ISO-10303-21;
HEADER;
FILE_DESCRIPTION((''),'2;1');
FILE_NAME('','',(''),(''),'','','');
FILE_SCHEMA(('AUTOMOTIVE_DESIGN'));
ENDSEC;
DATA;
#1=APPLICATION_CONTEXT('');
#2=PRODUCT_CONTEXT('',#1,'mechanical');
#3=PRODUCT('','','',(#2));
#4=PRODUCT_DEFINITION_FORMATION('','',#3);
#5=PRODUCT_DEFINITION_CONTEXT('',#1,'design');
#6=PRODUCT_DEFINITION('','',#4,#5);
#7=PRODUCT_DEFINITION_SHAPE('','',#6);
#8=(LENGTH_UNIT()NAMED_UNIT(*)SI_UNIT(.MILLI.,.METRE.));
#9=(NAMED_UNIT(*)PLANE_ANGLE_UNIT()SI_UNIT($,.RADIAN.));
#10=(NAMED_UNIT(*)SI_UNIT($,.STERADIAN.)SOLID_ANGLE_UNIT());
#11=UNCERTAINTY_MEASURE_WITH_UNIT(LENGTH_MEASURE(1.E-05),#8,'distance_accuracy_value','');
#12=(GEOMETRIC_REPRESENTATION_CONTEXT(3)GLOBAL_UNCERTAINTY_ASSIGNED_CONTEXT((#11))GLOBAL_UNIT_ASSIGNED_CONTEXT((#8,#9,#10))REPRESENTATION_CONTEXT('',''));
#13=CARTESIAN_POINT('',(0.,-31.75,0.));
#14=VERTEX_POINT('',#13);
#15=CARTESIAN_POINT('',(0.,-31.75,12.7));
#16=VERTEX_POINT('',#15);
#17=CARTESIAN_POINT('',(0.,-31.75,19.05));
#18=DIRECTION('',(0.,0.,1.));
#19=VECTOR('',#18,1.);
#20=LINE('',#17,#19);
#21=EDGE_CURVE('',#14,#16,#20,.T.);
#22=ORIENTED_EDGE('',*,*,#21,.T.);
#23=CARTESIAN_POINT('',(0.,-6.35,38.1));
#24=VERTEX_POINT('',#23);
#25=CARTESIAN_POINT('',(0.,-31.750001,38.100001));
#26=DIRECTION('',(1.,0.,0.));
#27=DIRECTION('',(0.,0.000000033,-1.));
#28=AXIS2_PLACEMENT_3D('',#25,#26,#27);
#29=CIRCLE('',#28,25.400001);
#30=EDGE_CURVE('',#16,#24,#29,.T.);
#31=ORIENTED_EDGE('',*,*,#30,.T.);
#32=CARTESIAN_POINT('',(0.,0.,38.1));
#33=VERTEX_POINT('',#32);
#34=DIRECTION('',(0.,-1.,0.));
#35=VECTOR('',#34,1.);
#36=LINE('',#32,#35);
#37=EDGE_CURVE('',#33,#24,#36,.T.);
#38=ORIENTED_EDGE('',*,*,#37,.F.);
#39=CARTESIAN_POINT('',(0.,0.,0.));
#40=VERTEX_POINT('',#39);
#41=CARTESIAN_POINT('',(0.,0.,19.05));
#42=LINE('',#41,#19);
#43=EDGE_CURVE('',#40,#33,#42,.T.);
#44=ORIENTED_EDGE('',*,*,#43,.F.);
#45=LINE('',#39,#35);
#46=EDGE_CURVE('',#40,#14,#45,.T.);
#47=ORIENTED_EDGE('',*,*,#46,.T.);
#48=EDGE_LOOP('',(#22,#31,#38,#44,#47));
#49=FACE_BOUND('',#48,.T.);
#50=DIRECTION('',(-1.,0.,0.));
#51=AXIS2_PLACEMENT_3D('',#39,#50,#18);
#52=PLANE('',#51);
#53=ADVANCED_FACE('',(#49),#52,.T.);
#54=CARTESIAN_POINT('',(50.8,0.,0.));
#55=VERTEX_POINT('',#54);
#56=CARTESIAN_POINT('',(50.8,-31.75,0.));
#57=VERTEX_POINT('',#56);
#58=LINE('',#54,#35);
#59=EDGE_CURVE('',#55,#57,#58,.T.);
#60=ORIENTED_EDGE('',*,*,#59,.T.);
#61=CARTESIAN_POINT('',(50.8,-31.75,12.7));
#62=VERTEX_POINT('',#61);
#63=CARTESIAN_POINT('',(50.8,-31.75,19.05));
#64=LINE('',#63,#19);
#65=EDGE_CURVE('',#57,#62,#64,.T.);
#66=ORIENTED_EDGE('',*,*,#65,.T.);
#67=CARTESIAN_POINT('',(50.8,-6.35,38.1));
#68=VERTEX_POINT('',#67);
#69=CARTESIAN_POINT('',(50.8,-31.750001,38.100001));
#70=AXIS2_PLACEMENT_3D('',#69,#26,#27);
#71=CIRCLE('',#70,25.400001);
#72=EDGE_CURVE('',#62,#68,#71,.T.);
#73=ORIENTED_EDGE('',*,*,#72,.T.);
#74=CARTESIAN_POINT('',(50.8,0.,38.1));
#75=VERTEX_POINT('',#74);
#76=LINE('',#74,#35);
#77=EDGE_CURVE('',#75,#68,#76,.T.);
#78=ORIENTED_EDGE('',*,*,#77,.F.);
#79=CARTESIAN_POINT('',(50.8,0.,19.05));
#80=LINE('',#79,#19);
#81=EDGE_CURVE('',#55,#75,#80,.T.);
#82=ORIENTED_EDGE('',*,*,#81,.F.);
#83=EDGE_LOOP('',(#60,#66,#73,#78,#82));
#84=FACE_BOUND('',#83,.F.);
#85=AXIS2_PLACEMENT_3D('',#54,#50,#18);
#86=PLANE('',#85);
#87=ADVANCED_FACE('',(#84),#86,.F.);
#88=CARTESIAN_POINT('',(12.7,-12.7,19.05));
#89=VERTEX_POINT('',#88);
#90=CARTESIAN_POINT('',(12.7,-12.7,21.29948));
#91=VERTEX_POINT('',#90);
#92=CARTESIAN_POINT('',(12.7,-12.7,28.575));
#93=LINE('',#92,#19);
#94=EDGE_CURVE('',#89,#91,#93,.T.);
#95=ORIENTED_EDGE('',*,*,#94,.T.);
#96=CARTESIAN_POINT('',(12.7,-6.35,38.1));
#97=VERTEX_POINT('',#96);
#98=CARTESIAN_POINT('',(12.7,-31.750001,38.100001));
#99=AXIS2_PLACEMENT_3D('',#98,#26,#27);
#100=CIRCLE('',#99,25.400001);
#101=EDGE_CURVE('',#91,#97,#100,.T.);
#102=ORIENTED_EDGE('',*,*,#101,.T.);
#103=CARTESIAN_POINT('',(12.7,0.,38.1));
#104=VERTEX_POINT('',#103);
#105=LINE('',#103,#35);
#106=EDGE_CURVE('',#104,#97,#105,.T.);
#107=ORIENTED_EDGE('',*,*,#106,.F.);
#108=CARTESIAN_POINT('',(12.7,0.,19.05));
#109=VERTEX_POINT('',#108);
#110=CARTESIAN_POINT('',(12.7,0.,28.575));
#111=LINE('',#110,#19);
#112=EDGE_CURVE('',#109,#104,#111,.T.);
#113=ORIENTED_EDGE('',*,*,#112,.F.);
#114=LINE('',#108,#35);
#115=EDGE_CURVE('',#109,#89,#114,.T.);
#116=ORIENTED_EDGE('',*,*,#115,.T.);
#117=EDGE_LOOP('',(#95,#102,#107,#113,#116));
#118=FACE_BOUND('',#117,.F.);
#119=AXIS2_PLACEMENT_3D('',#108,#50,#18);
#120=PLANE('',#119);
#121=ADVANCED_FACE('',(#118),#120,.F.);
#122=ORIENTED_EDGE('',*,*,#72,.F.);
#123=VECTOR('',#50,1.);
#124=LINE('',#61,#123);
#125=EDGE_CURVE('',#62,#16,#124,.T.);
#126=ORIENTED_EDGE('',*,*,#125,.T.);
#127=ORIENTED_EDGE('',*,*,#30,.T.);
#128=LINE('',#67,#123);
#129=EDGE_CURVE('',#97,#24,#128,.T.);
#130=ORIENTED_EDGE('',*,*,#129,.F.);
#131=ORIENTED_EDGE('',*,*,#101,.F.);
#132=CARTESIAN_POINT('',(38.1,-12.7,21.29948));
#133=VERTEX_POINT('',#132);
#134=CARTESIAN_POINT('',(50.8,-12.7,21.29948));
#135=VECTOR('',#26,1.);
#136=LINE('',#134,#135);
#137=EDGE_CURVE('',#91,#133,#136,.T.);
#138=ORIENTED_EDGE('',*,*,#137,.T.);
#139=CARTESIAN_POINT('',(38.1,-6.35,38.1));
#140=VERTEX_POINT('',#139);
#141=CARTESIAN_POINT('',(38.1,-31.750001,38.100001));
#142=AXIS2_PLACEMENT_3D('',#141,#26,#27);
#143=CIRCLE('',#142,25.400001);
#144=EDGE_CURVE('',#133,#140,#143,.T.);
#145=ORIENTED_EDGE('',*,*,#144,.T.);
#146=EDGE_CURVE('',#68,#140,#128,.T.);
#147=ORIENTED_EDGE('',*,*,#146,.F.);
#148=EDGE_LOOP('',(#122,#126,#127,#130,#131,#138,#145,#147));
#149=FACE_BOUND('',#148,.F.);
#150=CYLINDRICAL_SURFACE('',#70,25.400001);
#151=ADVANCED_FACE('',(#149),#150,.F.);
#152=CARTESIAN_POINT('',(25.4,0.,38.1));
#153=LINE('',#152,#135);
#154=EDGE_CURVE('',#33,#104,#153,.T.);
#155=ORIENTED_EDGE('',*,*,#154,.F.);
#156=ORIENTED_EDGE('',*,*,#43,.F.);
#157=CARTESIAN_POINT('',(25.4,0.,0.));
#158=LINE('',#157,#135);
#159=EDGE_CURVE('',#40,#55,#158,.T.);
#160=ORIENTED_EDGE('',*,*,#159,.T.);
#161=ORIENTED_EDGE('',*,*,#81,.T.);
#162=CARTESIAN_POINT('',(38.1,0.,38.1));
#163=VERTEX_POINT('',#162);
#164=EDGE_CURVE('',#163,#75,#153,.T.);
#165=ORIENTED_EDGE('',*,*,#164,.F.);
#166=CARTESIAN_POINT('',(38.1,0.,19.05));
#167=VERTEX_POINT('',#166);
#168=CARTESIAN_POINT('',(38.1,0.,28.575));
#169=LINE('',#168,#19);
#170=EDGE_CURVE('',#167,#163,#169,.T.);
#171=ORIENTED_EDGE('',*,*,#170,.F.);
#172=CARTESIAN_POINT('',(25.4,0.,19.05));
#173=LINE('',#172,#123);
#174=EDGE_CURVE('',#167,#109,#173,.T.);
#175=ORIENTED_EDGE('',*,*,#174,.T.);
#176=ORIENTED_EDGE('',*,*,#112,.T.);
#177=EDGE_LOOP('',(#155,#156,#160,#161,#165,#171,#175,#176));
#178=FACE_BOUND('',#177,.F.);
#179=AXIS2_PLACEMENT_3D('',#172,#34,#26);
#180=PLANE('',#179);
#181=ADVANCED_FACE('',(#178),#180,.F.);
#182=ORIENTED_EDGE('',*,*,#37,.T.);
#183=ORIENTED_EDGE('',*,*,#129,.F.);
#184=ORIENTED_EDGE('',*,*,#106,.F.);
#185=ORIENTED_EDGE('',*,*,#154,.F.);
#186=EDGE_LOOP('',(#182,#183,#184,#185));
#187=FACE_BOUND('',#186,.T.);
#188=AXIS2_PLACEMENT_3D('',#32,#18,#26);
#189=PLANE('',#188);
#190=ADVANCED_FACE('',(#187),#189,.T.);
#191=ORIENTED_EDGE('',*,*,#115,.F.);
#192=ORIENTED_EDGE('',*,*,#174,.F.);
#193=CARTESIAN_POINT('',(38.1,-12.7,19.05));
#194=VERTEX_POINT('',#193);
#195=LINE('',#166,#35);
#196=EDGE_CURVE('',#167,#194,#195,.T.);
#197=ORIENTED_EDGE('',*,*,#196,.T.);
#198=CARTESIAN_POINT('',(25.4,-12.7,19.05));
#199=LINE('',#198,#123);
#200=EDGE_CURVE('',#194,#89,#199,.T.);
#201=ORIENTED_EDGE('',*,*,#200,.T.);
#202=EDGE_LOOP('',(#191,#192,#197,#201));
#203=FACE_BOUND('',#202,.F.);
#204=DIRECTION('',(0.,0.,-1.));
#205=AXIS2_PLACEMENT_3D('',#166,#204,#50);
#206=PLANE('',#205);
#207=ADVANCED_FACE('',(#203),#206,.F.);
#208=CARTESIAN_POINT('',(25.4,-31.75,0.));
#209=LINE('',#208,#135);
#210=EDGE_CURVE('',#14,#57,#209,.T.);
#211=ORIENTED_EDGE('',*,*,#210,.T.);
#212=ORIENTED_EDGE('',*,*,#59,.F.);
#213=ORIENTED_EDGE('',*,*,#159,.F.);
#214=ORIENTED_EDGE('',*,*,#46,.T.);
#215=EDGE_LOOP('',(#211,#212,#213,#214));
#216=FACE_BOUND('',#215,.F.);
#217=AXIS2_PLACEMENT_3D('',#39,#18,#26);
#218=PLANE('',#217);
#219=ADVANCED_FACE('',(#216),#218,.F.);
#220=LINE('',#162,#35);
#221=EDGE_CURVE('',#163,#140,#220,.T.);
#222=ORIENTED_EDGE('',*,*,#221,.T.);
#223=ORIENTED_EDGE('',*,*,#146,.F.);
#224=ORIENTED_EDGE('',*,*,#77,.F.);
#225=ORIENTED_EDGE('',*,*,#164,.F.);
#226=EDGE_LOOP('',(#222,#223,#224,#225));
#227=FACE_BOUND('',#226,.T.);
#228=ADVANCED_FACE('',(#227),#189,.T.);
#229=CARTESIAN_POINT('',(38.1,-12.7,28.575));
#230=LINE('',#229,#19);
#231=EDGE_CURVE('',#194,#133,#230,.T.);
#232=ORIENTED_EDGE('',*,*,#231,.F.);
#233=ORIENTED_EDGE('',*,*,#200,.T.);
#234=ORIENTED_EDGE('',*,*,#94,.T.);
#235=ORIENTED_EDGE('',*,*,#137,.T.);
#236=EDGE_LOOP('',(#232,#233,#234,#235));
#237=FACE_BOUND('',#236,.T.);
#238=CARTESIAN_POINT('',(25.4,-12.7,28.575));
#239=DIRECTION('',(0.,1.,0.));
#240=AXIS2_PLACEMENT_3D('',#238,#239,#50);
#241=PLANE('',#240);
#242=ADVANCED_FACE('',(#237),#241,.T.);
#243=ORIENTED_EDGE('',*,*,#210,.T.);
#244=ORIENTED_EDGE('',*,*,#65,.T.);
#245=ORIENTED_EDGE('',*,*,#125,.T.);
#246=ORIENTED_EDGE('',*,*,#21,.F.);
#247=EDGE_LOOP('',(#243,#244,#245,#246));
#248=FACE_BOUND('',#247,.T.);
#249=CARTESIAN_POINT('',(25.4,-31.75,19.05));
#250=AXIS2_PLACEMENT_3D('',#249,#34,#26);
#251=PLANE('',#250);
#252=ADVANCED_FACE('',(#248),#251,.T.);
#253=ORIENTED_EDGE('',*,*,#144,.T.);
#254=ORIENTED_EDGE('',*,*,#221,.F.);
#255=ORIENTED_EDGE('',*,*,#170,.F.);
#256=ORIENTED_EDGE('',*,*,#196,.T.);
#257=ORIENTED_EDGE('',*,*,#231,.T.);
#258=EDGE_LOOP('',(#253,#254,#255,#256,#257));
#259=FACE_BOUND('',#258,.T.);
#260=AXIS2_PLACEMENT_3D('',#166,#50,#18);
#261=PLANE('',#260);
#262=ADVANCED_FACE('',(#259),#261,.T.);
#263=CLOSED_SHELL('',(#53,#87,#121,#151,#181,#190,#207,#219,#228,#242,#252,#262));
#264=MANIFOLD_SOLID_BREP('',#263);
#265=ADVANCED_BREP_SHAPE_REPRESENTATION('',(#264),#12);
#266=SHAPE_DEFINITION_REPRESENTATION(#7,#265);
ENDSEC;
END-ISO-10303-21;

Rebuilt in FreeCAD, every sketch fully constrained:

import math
import FreeCAD as App
import Part
import Sketcher

V = App.Vector
Q = App.Units.Quantity

doc = App.newDocument("Part")
params = doc.addObject("Spreadsheet::Sheet", "Params")
for row, (alias, value) in enumerate([
    ("sketch1_width", "2 in"),
    ("sketch1_height", "1.5 in"),
    ("pad1_length", "1.25 in"),
    ("sketch2_width", "1 in"),
    ("sketch2_height", "0.75 in"),
    ("pocket1_length", "0.5 in"),
    ("sketch3_radius", "1 in"),
    ("pocket2_length", "2 in"),
], start=1):
    params.set(f"A{row}", alias)
    params.set(f"B{row}", "=" + value)
    params.setAlias(f"B{row}", alias)

body = doc.addObject("PartDesign::Body", "Body")

sketch1 = doc.addObject("Sketcher::SketchObject", "Sketch")
body.addObject(sketch1)
sketch1.AttachmentSupport = (doc.XZ_Plane, [""])
sketch1.MapMode = "FlatFace"
sketch1.addGeometry(Part.LineSegment(V(0, 38, 0), V(0, 0, 0)), False)
sketch1.addGeometry(Part.LineSegment(V(0, 0, 0), V(51, 0, 0)), False)
sketch1.addGeometry(Part.LineSegment(V(51, 0, 0), V(51, 38, 0)), False)
sketch1.addGeometry(Part.LineSegment(V(51, 38, 0), V(0, 38, 0)), False)
sketch1.addConstraint(Sketcher.Constraint("Coincident", 0, 2, 1, 1))
sketch1.addConstraint(Sketcher.Constraint("Coincident", 1, 2, 2, 1))
sketch1.addConstraint(Sketcher.Constraint("Coincident", 2, 2, 3, 1))
sketch1.addConstraint(Sketcher.Constraint("Coincident", 3, 2, 0, 1))
sketch1.addConstraint(Sketcher.Constraint("Vertical", 0))
sketch1.addConstraint(Sketcher.Constraint("Horizontal", 1))
sketch1.addConstraint(Sketcher.Constraint("Vertical", 2))
sketch1.addConstraint(Sketcher.Constraint("Horizontal", 3))
sketch1.addConstraint(Sketcher.Constraint("Coincident", 0, 2, -1, 1))
sketch1.addConstraint(Sketcher.Constraint("DistanceX", 1, 1, 1, 2, Q("2 in")))
sketch1.addConstraint(Sketcher.Constraint("DistanceY", 0, 2, 0, 1, Q("1.5 in")))
sketch1.setExpression("Constraints[9]", "Params.sketch1_width")
sketch1.setExpression("Constraints[10]", "Params.sketch1_height")
pad1 = doc.addObject("PartDesign::Pad", "Pad")
body.addObject(pad1)
pad1.Profile = sketch1
pad1.setExpression("Length", "Params.pad1_length")

sketch2 = doc.addObject("Sketcher::SketchObject", "Sketch001")
body.addObject(sketch2)
sketch2.AttachmentSupport = (doc.XZ_Plane, [""])
sketch2.MapMode = "FlatFace"
sketch2.addGeometry(Part.LineSegment(V(38, 38, 0), V(38, 19, 0)), False)
sketch2.addGeometry(Part.LineSegment(V(38, 19, 0), V(13, 19, 0)), False)
sketch2.addGeometry(Part.LineSegment(V(13, 19, 0), V(13, 38, 0)), False)
sketch2.addGeometry(Part.LineSegment(V(13, 38, 0), V(38, 38, 0)), False)
sketch2.addConstraint(Sketcher.Constraint("Coincident", 0, 2, 1, 1))
sketch2.addConstraint(Sketcher.Constraint("Coincident", 1, 2, 2, 1))
sketch2.addConstraint(Sketcher.Constraint("Coincident", 2, 2, 3, 1))
sketch2.addConstraint(Sketcher.Constraint("Coincident", 3, 2, 0, 1))
sketch2.addConstraint(Sketcher.Constraint("Vertical", 0))
sketch2.addConstraint(Sketcher.Constraint("Horizontal", 1))
sketch2.addConstraint(Sketcher.Constraint("Vertical", 2))
sketch2.addConstraint(Sketcher.Constraint("Horizontal", 3))
sketch2.addConstraint(Sketcher.Constraint("DistanceX", 1, 2, 1, 1, Q("1 in")))
sketch2.addConstraint(Sketcher.Constraint("DistanceY", 0, 2, 0, 1, Q("0.75 in")))
sketch2.addConstraint(Sketcher.Constraint("DistanceX", -1, 1, 0, 2, Q("1.5 in")))
sketch2.addConstraint(Sketcher.Constraint("DistanceY", -1, 1, 2, 2, Q("1.5 in")))
sketch2.setExpression("Constraints[8]", "Params.sketch2_width")
sketch2.setExpression("Constraints[9]", "Params.sketch2_height")
pocket1 = doc.addObject("PartDesign::Pocket", "Pocket")
body.addObject(pocket1)
pocket1.Profile = sketch2
pocket1.setExpression("Length", "Params.pocket1_length")
pocket1.Reversed = True

sketch3 = doc.addObject("Sketcher::SketchObject", "Sketch002")
body.addObject(sketch3)
sketch3.AttachmentSupport = (doc.YZ_Plane, [""])
sketch3.MapMode = "FlatFace"
sketch3.AttachmentOffset = App.Placement(V(0, 0, 2 * 25.4), App.Rotation())
sketch3.addGeometry(Part.ArcOfCircle(Part.Circle(V(-32, 38, 0), V(0, 0, 1), 25), math.radians(0), math.radians(270)), False)
sketch3.addGeometry(Part.ArcOfCircle(Part.Circle(V(-32, 38, 0), V(0, 0, 1), 25), math.radians(-90), math.radians(0)), False)
sketch3.addConstraint(Sketcher.Constraint("Tangent", 0, 1, 1, 2))
sketch3.addConstraint(Sketcher.Constraint("Coincident", 1, 1, 0, 2))
sketch3.addConstraint(Sketcher.Constraint("Horizontal", 1, 3, 0, 1))
sketch3.addConstraint(Sketcher.Constraint("Vertical", 0, 3, 1, 1))
sketch3.addConstraint(Sketcher.Constraint("Radius", 0, Q("1 in")))
sketch3.addConstraint(Sketcher.Constraint("DistanceY", -1, 1, 0, 3, Q("1.5 in")))
sketch3.addConstraint(Sketcher.Constraint("DistanceX", 0, 3, -1, 1, Q("1.25 in")))
sketch3.setExpression("Constraints[4]", "Params.sketch3_radius")
pocket2 = doc.addObject("PartDesign::Pocket", "Pocket001")
body.addObject(pocket2)
pocket2.Profile = sketch3
pocket2.setExpression("Length", "Params.pocket2_length")

doc.recompute()
